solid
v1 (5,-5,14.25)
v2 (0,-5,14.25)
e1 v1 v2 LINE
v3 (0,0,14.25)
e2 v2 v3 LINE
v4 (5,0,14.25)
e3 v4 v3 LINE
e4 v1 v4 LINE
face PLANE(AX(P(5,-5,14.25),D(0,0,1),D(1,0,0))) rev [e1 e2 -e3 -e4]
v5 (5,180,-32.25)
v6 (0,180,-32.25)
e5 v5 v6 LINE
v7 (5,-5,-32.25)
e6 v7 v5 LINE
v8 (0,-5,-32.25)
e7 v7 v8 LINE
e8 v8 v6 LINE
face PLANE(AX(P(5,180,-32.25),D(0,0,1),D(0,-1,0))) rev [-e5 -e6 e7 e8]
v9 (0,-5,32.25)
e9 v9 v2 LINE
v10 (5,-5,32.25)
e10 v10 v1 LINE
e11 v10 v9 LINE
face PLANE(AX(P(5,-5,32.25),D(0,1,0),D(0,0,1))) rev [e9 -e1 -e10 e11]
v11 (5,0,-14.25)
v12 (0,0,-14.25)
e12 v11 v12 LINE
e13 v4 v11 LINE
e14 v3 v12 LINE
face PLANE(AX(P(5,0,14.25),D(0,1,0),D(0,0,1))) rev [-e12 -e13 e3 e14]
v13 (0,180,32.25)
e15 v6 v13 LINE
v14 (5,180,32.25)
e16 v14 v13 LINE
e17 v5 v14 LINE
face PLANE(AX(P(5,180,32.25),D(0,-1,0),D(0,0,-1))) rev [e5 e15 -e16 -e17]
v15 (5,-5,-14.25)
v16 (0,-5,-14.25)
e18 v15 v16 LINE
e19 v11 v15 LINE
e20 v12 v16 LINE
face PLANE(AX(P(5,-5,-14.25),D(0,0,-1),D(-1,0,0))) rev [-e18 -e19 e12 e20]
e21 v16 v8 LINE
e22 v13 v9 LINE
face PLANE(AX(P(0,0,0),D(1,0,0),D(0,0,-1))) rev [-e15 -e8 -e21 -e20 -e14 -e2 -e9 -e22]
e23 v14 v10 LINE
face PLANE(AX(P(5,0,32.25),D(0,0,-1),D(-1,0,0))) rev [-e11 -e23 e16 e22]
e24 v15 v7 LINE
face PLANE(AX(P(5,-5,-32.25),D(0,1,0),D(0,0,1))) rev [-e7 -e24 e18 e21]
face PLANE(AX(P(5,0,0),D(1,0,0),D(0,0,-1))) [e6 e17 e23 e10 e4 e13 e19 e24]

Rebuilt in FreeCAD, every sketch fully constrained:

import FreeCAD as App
import Part
import Sketcher

V = App.Vector

doc = App.newDocument("Part")
body = doc.addObject("PartDesign::Body", "Body")

sketch1 = body.newObject("Sketcher::SketchObject", "Sketch")
sketch1.AttachmentSupport = (doc.getObject("YZ_Plane"), [""])
sketch1.MapMode = "FlatFace"
sketch1.addGeometry([
    Part.LineSegment(V(180, -32.25, 0), V(180, 32.25, 0)),
    Part.LineSegment(V(180, 32.25, 0), V(-5, 32.25, 0)),
    Part.LineSegment(V(-5, 32.25, 0), V(-5, 14.25, 0)),
    Part.LineSegment(V(-5, 14.25, 0), V(0, 14.25, 0)),
    Part.LineSegment(V(0, 14.25, 0), V(0, -14.25, 0)),
    Part.LineSegment(V(0, -14.25, 0), V(-5, -14.25, 0)),
    Part.LineSegment(V(-5, -14.25, 0), V(-5, -32.25, 0)),
    Part.LineSegment(V(-5, -32.25, 0), V(180, -32.25, 0)),
], False)
sketch1.addConstraint([
    Sketcher.Constraint("Coincident", 0, 2, 1, 1),
    Sketcher.Constraint("Coincident", 1, 2, 2, 1),
    Sketcher.Constraint("Coincident", 2, 2, 3, 1),
    Sketcher.Constraint("Coincident", 3, 2, 4, 1),
    Sketcher.Constraint("Coincident", 4, 2, 5, 1),
    Sketcher.Constraint("Coincident", 5, 2, 6, 1),
    Sketcher.Constraint("Coincident", 6, 2, 7, 1),
    Sketcher.Constraint("Coincident", 7, 2, 0, 1),
    Sketcher.Constraint("Vertical", 0),
    Sketcher.Constraint("Horizontal", 1),
    Sketcher.Constraint("Vertical", 2),
    Sketcher.Constraint("Horizontal", 3),
    Sketcher.Constraint("Vertical", 4),
    Sketcher.Constraint("Horizontal", 5),
    Sketcher.Constraint("Vertical", 6),
    Sketcher.Constraint("Horizontal", 7),
    Sketcher.Constraint("Symmetric", 3, 2, 4, 2, -1, 1),
    Sketcher.Constraint("Symmetric", 1, 2, 6, 2, -1),
    Sketcher.Constraint("DistanceX", 1, 2, 1, 1, 185.0),
    Sketcher.Constraint("DistanceX", 3, 1, 3, 2, 5.0),
    Sketcher.Constraint("DistanceY", 2, 2, 2, 1, 18.0),
    Sketcher.Constraint("DistanceY", 0, 1, 0, 2, 64.5),
])
pad1 = body.newObject("PartDesign::Pad", "Pad")
pad1.Profile = sketch1
pad1.Length = 5

doc.recompute()
